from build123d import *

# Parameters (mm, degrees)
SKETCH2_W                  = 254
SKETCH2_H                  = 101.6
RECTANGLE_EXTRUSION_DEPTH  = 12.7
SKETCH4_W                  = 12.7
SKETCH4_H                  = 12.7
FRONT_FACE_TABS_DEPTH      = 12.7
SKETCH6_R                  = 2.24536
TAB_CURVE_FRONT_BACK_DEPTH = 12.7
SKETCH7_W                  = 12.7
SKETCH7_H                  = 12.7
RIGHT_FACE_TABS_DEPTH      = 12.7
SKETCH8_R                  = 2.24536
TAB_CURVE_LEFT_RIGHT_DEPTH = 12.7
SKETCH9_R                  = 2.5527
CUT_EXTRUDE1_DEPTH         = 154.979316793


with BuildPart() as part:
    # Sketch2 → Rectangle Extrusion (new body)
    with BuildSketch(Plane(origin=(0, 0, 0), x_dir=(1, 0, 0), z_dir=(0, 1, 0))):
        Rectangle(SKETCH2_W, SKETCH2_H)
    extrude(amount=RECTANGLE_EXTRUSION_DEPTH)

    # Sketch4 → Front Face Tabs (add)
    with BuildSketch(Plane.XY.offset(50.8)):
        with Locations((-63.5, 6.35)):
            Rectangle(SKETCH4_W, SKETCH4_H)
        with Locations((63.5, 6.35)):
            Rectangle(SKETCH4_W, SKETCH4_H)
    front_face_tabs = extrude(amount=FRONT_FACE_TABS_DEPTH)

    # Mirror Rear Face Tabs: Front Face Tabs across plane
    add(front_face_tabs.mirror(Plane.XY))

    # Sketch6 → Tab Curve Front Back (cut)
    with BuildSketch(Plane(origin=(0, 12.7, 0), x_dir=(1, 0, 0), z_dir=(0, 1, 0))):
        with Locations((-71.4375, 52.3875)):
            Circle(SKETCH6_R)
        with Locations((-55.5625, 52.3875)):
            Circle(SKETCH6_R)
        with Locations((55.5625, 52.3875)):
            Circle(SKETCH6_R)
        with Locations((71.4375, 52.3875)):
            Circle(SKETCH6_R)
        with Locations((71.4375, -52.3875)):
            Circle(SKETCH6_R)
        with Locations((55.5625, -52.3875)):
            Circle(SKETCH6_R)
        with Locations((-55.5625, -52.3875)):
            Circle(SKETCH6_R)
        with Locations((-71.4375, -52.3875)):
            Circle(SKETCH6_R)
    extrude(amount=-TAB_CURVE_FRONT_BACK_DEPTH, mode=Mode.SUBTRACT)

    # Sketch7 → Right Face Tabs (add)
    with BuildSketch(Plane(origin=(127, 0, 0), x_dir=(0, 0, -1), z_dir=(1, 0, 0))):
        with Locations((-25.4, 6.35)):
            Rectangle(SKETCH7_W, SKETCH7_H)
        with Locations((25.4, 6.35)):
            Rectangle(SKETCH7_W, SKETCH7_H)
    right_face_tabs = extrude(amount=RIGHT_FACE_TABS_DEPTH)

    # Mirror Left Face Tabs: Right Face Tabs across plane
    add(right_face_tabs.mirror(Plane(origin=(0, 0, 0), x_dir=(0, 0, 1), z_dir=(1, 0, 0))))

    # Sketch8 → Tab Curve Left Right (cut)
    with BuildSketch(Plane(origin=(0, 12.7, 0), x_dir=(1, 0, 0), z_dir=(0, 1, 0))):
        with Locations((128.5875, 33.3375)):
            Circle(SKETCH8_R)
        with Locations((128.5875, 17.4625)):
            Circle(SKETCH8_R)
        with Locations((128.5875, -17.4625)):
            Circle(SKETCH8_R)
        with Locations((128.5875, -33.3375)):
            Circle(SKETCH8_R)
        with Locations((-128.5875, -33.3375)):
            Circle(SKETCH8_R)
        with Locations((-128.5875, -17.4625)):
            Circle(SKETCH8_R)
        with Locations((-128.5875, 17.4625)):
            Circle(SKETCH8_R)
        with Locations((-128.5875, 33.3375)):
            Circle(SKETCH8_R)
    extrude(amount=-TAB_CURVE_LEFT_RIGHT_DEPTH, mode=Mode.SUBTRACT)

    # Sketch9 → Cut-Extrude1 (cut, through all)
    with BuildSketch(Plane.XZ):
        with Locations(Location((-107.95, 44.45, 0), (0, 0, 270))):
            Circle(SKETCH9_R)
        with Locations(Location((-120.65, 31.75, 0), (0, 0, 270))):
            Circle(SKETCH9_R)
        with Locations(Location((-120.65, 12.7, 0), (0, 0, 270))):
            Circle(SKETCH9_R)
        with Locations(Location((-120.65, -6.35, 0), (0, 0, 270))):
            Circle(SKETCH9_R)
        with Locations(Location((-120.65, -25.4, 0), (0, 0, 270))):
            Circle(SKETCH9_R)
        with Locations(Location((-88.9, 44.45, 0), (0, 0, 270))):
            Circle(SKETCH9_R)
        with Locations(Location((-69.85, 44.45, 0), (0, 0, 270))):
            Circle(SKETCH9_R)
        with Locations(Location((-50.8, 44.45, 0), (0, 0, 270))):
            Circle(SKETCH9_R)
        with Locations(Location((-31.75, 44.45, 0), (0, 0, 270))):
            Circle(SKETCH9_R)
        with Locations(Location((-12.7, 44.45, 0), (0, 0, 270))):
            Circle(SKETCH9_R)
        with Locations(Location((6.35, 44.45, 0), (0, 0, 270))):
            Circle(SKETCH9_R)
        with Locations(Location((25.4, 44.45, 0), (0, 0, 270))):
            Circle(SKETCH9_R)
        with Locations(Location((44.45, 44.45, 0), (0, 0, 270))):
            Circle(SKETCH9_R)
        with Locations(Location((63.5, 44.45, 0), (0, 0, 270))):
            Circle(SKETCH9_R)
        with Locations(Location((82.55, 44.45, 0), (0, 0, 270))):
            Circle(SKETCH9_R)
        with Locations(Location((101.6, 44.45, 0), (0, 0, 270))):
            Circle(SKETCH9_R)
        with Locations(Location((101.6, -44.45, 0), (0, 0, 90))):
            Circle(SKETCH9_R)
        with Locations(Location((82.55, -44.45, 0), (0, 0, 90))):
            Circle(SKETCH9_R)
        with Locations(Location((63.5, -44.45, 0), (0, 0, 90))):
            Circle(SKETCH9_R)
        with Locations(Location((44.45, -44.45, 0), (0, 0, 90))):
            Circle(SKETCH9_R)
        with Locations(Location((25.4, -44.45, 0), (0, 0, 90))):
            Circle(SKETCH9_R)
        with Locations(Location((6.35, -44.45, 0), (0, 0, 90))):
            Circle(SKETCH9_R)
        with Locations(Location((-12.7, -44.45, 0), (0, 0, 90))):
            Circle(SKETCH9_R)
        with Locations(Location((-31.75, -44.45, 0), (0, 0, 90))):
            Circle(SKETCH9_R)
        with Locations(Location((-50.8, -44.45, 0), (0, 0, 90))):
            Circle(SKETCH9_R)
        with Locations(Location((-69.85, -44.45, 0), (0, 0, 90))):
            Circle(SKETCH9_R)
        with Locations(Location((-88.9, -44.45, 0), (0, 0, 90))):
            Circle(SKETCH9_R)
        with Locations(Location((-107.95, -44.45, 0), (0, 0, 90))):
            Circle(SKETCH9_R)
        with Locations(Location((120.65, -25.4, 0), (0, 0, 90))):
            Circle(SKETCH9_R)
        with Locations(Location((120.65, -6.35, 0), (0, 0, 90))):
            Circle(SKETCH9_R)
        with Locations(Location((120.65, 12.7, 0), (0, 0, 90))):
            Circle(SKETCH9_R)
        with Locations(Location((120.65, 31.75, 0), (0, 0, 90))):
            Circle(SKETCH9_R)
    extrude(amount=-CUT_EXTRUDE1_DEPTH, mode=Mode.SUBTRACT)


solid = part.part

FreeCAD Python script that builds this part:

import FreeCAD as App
import Part
import Sketcher
from FreeCAD import Vector
Q = App.Units.Quantity

doc = App.newDocument("Part")
params = doc.addObject("Spreadsheet::Sheet", "Params")
for row, (alias, value) in enumerate([
    ("sketch1_width", "10 in"),
    ("sketch1_height", "4 in"),
    ("pad1_length", "0.5 in"),
    ("sketch2_width", "0.5 in"),
    ("pad2_length", "0.5 in"),
    ("pocket1_length", "0.5 in"),
    ("sketch4_width", "0.5 in"),
    ("pad3_length", "0.5 in"),
    ("pocket2_length", "0.5 in"),
    ("sketch6_diameter", "0.201 in"),
], start=1):
    params.set(f"A{row}", alias)
    params.set(f"B{row}", "=" + value)
    params.setAlias(f"B{row}", alias)

body = doc.addObject("PartDesign::Body", "Body")

sketch1 = body.newObject("Sketcher::SketchObject", "Sketch")
sketch1.AttachmentSupport = (doc.getObject("XZ_Plane"), [""])
sketch1.MapMode = "FlatFace"
sketch1.addGeometry([
    Part.LineSegment(Vector(-127, -50.8, 0), Vector(-127, 50.8, 0)),
    Part.LineSegment(Vector(-127, 50.8, 0), Vector(127, 50.8, 0)),
    Part.LineSegment(Vector(127, 50.8, 0), Vector(127, -50.8, 0)),
    Part.LineSegment(Vector(127, -50.8, 0), Vector(-127, -50.8, 0)),
], False)
sketch1.addConstraint([
    Sketcher.Constraint("Coincident", 0, 2, 1, 1),
    Sketcher.Constraint("Coincident", 1, 2, 2, 1),
    Sketcher.Constraint("Coincident", 2, 2, 3, 1),
    Sketcher.Constraint("Coincident", 3, 2, 0, 1),
    Sketcher.Constraint("Vertical", 0),
    Sketcher.Constraint("Horizontal", 1),
    Sketcher.Constraint("Vertical", 2),
    Sketcher.Constraint("Horizontal", 3),
    Sketcher.Constraint("Symmetric", 0, 2, 2, 2, -1, 1),
    Sketcher.Constraint("DistanceX", 1, 1, 1, 2, Q("10 in")),
    Sketcher.Constraint("DistanceY", 0, 1, 0, 2, Q("4 in")),
])
sketch1.setExpression("Constraints[9]", "Params.sketch1_width")
sketch1.setExpression("Constraints[10]", "Params.sketch1_height")
pad1 = body.newObject("PartDesign::Pad", "Pad")
pad1.Profile = sketch1
pad1.setExpression("Length", "Params.pad1_length")
pad1.Reversed = True

sketch2 = body.newObject("Sketcher::SketchObject", "Sketch001")
sketch2.AttachmentSupport = (doc.getObject("XY_Plane"), [""])
sketch2.MapMode = "FlatFace"
sketch2.AttachmentOffset = App.Placement(Vector(0, 0, 2 * 25.4), App.Rotation())
sketch2.addGeometry([
    Part.LineSegment(Vector(-69.85, 12.7, 0), Vector(-69.85, 0, 0)),
    Part.LineSegment(Vector(-69.85, 0, 0), Vector(-57.15, 0, 0)),
    Part.LineSegment(Vector(-57.15, 0, 0), Vector(-57.15, 12.7, 0)),
    Part.LineSegment(Vector(-57.15, 12.7, 0), Vector(-69.85, 12.7, 0)),
    Part.LineSegment(Vector(57.15, 12.7, 0), Vector(57.15, 0, 0)),
    Part.LineSegment(Vector(57.15, 0, 0), Vector(69.85, 0, 0)),
    Part.LineSegment(Vector(69.85, 0, 0), Vector(69.85, 12.7, 0)),
    Part.LineSegment(Vector(69.85, 12.7, 0), Vector(57.15, 12.7, 0)),
], False)
sketch2.addConstraint([
    Sketcher.Constraint("Coincident", 0, 2, 1, 1),
    Sketcher.Constraint("Coincident", 1, 2, 2, 1),
    Sketcher.Constraint("Coincident", 2, 2, 3, 1),
    Sketcher.Constraint("Coincident", 3, 2, 0, 1),
    Sketcher.Constraint("Coincident", 4, 2, 5, 1),
    Sketcher.Constraint("Coincident", 5, 2, 6, 1),
    Sketcher.Constraint("Coincident", 6, 2, 7, 1),
    Sketcher.Constraint("Coincident", 7, 2, 4, 1),
    Sketcher.Constraint("Vertical", 0),
    Sketcher.Constraint("Horizontal", 1),
    Sketcher.Constraint("Vertical", 2),
    Sketcher.Constraint("Horizontal", 3),
    Sketcher.Constraint("Vertical", 4),
    Sketcher.Constraint("Horizontal", 5),
    Sketcher.Constraint("Vertical", 6),
    Sketcher.Constraint("Horizontal", 7),
    Sketcher.Constraint("Symmetric", 1, 2, 4, 2, -1, 1),
    Sketcher.Constraint("Symmetric", 0, 2, 5, 2, -2),
    Sketcher.Constraint("Horizontal", 3, 2, 6, 2),
    Sketcher.Constraint("Equal", 7, 0),
    Sketcher.Constraint("DistanceX", 1, 1, 1, 2, Q("0.5 in")),
    Sketcher.Constraint("DistanceX", 0, 2, 4, 2, Q("5 in")),
])
sketch2.setExpression("Constraints[20]", "Params.sketch2_width")
pad2 = body.newObject("PartDesign::Pad", "Pad001")
pad2.Profile = sketch2
pad2.setExpression("Length", "Params.pad2_length")
doc.recompute()

mirrored = body.newObject("PartDesign::Mirrored", "Mirrored")
mirrored.Originals = [pad2]
mirrored.MirrorPlane = (doc.getObject("XY_Plane"), [""])
body.Tip = mirrored

sketch3 = body.newObject("Sketcher::SketchObject", "Sketch002")
sketch3.AttachmentSupport = (doc.getObject("XZ_Plane"), [""])
sketch3.MapMode = "FlatFace"
sketch3.AttachmentOffset = App.Placement(Vector(0, 0, -0.5 * 25.4), App.Rotation())
sketch3.addGeometry([
    Part.Circle(Vector(-71.4375, -52.3875, 0), Vector(0, 0, 1), 2.24536),
    Part.Circle(Vector(-55.5625, -52.3875, 0), Vector(0, 0, 1), 2.24536),
    Part.Circle(Vector(55.5625, -52.3875, 0), Vector(0, 0, 1), 2.24536),
    Part.Circle(Vector(71.4375, -52.3875, 0), Vector(0, 0, 1), 2.24536),
    Part.Circle(Vector(71.4375, 52.3875, 0), Vector(0, 0, 1), 2.24536),
    Part.Circle(Vector(55.5625, 52.3875, 0), Vector(0, 0, 1), 2.24536),
    Part.Circle(Vector(-55.5625, 52.3875, 0), Vector(0, 0, 1), 2.24536),
    Part.Circle(Vector(-71.4375, 52.3875, 0), Vector(0, 0, 1), 2.24536),
], False)
sketch3.addConstraint([
    Sketcher.Constraint("Equal", 0, 1),
    Sketcher.Constraint("Equal", 1, 2),
    Sketcher.Constraint("Equal", 2, 3),
    Sketcher.Constraint("Equal", 3, 4),
    Sketcher.Constraint("Equal", 4, 5),
    Sketcher.Constraint("Equal", 5, 6),
    Sketcher.Constraint("Equal", 6, 7),
    Sketcher.Constraint("Symmetric", 0, 3, 4, 3, -1, 1),
    Sketcher.Constraint("Symmetric", 1, 3, 5, 3, -1, 1),
    Sketcher.Constraint("Symmetric", 2, 3, 6, 3, -1, 1),
    Sketcher.Constraint("Symmetric", 3, 3, 7, 3, -1, 1),
    Sketcher.Constraint("Symmetric", 1, 3, 2, 3, -2),
    Sketcher.Constraint("Symmetric", 0, 3, 3, 3, -2),
    Sketcher.Constraint("Horizontal", 0, 3, 1, 3),
    Sketcher.Constraint("DistanceX", 0, 3, 2, 3, Q("5 in")),
    Sketcher.Constraint("Diameter", 0, Q("0.1768 in")),
    Sketcher.Constraint("DistanceX", 0, 3, -1, 1, Q("2.8125 in")),
    Sketcher.Constraint("DistanceY", 0, 3, -1, 1, Q("2.0625 in")),
])
pocket1 = body.newObject("PartDesign::Pocket", "Pocket")
pocket1.Profile = sketch3
pocket1.setExpression("Length", "Params.pocket1_length")
pocket1.Reversed = True

sketch4 = body.newObject("Sketcher::SketchObject", "Sketch003")
sketch4.AttachmentSupport = (doc.getObject("YZ_Plane"), [""])
sketch4.MapMode = "FlatFace"
sketch4.AttachmentOffset = App.Placement(Vector(0, 0, 5 * 25.4), App.Rotation())
sketch4.addGeometry([
    Part.LineSegment(Vector(12.7, 31.75, 0), Vector(0, 31.75, 0)),
    Part.LineSegment(Vector(0, 31.75, 0), Vector(0, 19.05, 0)),
    Part.LineSegment(Vector(0, 19.05, 0), Vector(12.7, 19.05, 0)),
    Part.LineSegment(Vector(12.7, 19.05, 0), Vector(12.7, 31.75, 0)),
    Part.LineSegment(Vector(12.7, -19.05, 0), Vector(0, -19.05, 0)),
    Part.LineSegment(Vector(0, -19.05, 0), Vector(0, -31.75, 0)),
    Part.LineSegment(Vector(0, -31.75, 0), Vector(12.7, -31.75, 0)),
    Part.LineSegment(Vector(12.7, -31.75, 0), Vector(12.7, -19.05, 0)),
], False)
sketch4.addConstraint([
    Sketcher.Constraint("Coincident", 0, 2, 1, 1),
    Sketcher.Constraint("Coincident", 1, 2, 2, 1),
    Sketcher.Constraint("Coincident", 2, 2, 3, 1),
    Sketcher.Constraint("Coincident", 3, 2, 0, 1),
    Sketcher.Constraint("Coincident", 4, 2, 5, 1),
    Sketcher.Constraint("Coincident", 5, 2, 6, 1),
    Sketcher.Constraint("Coincident", 6, 2, 7, 1),
    Sketcher.Constraint("Coincident", 7, 2, 4, 1),
    Sketcher.Constraint("Horizontal", 0),
    Sketcher.Constraint("Vertical", 1),
    Sketcher.Constraint("Horizontal", 2),
    Sketcher.Constraint("Vertical", 3),
    Sketcher.Constraint("Horizontal", 4),
    Sketcher.Constraint("Vertical", 5),
    Sketcher.Constraint("Horizontal", 6),
    Sketcher.Constraint("Vertical", 7),
    Sketcher.Constraint("Symmetric", 1, 2, 4, 2, -1, 1),
    Sketcher.Constraint("Symmetric", 0, 2, 5, 2, -1),
    Sketcher.Constraint("Vertical", 3, 2, 6, 2),
    Sketcher.Constraint("Equal", 6, 1),
    Sketcher.Constraint("DistanceX", 0, 2, 0, 1, Q("0.5 in")),
    Sketcher.Constraint("DistanceY", 4, 2, 0, 2, Q("2 in")),
])
sketch4.setExpression("Constraints[20]", "Params.sketch4_width")
pad3 = body.newObject("PartDesign::Pad", "Pad002")
pad3.Profile = sketch4
pad3.setExpression("Length", "Params.pad3_length")
doc.recompute()

mirrored2 = body.newObject("PartDesign::Mirrored", "Mirrored001")
mirrored2.Originals = [pad3]
mirrored2.MirrorPlane = (doc.getObject("YZ_Plane"), [""])
body.Tip = mirrored2

sketch5 = body.newObject("Sketcher::SketchObject", "Sketch004")
sketch5.AttachmentSupport = (doc.getObject("XZ_Plane"), [""])
sketch5.MapMode = "FlatFace"
sketch5.AttachmentOffset = App.Placement(Vector(0, 0, -0.5 * 25.4), App.Rotation())
sketch5.addGeometry([
    Part.Circle(Vector(128.5875, -33.3375, 0), Vector(0, 0, 1), 2.24536),
    Part.Circle(Vector(128.5875, -17.4625, 0), Vector(0, 0, 1), 2.24536),
    Part.Circle(Vector(128.5875, 17.4625, 0), Vector(0, 0, 1), 2.24536),
    Part.Circle(Vector(128.5875, 33.3375, 0), Vector(0, 0, 1), 2.24536),
    Part.Circle(Vector(-128.5875, 33.3375, 0), Vector(0, 0, 1), 2.24536),
    Part.Circle(Vector(-128.5875, 17.4625, 0), Vector(0, 0, 1), 2.24536),
    Part.Circle(Vector(-128.5875, -17.4625, 0), Vector(0, 0, 1), 2.24536),
    Part.Circle(Vector(-128.5875, -33.3375, 0), Vector(0, 0, 1), 2.24536),
], False)
sketch5.addConstraint([
    Sketcher.Constraint("Equal", 0, 1),
    Sketcher.Constraint("Equal", 1, 2),
    Sketcher.Constraint("Equal", 2, 3),
    Sketcher.Constraint("Equal", 3, 4),
    Sketcher.Constraint("Equal", 4, 5),
    Sketcher.Constraint("Equal", 5, 6),
    Sketcher.Constraint("Equal", 6, 7),
    Sketcher.Constraint("Symmetric", 0, 3, 4, 3, -1, 1),
    Sketcher.Constraint("Symmetric", 1, 3, 5, 3, -1, 1),
    Sketcher.Constraint("Symmetric", 2, 3, 6, 3, -1, 1),
    Sketcher.Constraint("Symmetric", 3, 3, 7, 3, -1, 1),
    Sketcher.Constraint("Symmetric", 3, 3, 4, 3, -2),
    Sketcher.Constraint("Symmetric", 2, 3, 5, 3, -2),
    Sketcher.Constraint("Vertical", 0, 3, 1, 3),
    Sketcher.Constraint("DistanceY", 0, 3, 2, 3, Q("2 in")),
    Sketcher.Constraint("Diameter", 0, Q("0.1768 in")),
    Sketcher.Constraint("DistanceX", -1, 1, 0, 3, Q("5.0625 in")),
    Sketcher.Constraint("DistanceY", 0, 3, -1, 1, Q("1.3125 in")),
])
pocket2 = body.newObject("PartDesign::Pocket", "Pocket001")
pocket2.Profile = sketch5
pocket2.setExpression("Length", "Params.pocket2_length")
pocket2.Reversed = True

sketch6 = body.newObject("Sketcher::SketchObject", "Sketch005")
sketch6.AttachmentSupport = (doc.getObject("XZ_Plane"), [""])
sketch6.MapMode = "FlatFace"
sketch6.addGeometry([
    Part.Circle(Vector(-107.95, 44.45, 0), Vector(0, 0, 1), 2.5527),
    Part.Circle(Vector(-120.65, 31.75, 0), Vector(0, 0, 1), 2.5527),
    Part.Circle(Vector(-120.65, 12.7, 0), Vector(0, 0, 1), 2.5527),
    Part.Circle(Vector(-120.65, -6.35, 0), Vector(0, 0, 1), 2.5527),
    Part.Circle(Vector(-120.65, -25.4, 0), Vector(0, 0, 1), 2.5527),
    Part.Circle(Vector(-88.9, 44.45, 0), Vector(0, 0, 1), 2.5527),
    Part.Circle(Vector(-69.85, 44.45, 0), Vector(0, 0, 1), 2.5527),
    Part.Circle(Vector(-50.8, 44.45, 0), Vector(0, 0, 1), 2.5527),
    Part.Circle(Vector(-31.75, 44.45, 0), Vector(0, 0, 1), 2.5527),
    Part.Circle(Vector(-12.7, 44.45, 0), Vector(0, 0, 1), 2.5527),
    Part.Circle(Vector(6.35, 44.45, 0), Vector(0, 0, 1), 2.5527),
    Part.Circle(Vector(25.4, 44.45, 0), Vector(0, 0, 1), 2.5527),
    Part.Circle(Vector(44.45, 44.45, 0), Vector(0, 0, 1), 2.5527),
    Part.Circle(Vector(63.5, 44.45, 0), Vector(0, 0, 1), 2.5527),
    Part.Circle(Vector(82.55, 44.45, 0), Vector(0, 0, 1), 2.5527),
    Part.Circle(Vector(101.6, 44.45, 0), Vector(0, 0, 1), 2.5527),
    Part.Circle(Vector(101.6, -44.45, 0), Vector(0, 0, 1), 2.5527),
    Part.Circle(Vector(82.55, -44.45, 0), Vector(0, 0, 1), 2.5527),
    Part.Circle(Vector(63.5, -44.45, 0), Vector(0, 0, 1), 2.5527),
    Part.Circle(Vector(44.45, -44.45, 0), Vector(0, 0, 1), 2.5527),
    Part.Circle(Vector(25.4, -44.45, 0), Vector(0, 0, 1), 2.5527),
    Part.Circle(Vector(6.35, -44.45, 0), Vector(0, 0, 1), 2.5527),
    Part.Circle(Vector(-12.7, -44.45, 0), Vector(0, 0, 1), 2.5527),
    Part.Circle(Vector(-31.75, -44.45, 0), Vector(0, 0, 1), 2.5527),
    Part.Circle(Vector(-50.8, -44.45, 0), Vector(0, 0, 1), 2.5527),
    Part.Circle(Vector(-69.85, -44.45, 0), Vector(0, 0, 1), 2.5527),
    Part.Circle(Vector(-88.9, -44.45, 0), Vector(0, 0, 1), 2.5527),
    Part.Circle(Vector(-107.95, -44.45, 0), Vector(0, 0, 1), 2.5527),
    Part.Circle(Vector(120.65, -25.4, 0), Vector(0, 0, 1), 2.5527),
    Part.Circle(Vector(120.65, -6.35, 0), Vector(0, 0, 1), 2.5527),
    Part.Circle(Vector(120.65, 12.7, 0), Vector(0, 0, 1), 2.5527),
    Part.Circle(Vector(120.65, 31.75, 0), Vector(0, 0, 1), 2.5527),
], False)
sketch6.addConstraint([
    Sketcher.Constraint("Equal", 0, 1),
    Sketcher.Constraint("Equal", 1, 2),
    Sketcher.Constraint("Equal", 2, 3),
    Sketcher.Constraint("Equal", 3, 4),
    Sketcher.Constraint("Equal", 4, 5),
    Sketcher.Constraint("Equal", 5, 6),
    Sketcher.Constraint("Equal", 6, 7),
    Sketcher.Constraint("Equal", 7, 8),
    Sketcher.Constraint("Equal", 8, 9),
    Sketcher.Constraint("Equal", 9, 10),
    Sketcher.Constraint("Equal", 10, 11),
    Sketcher.Constraint("Equal", 11, 12),
    Sketcher.Constraint("Equal", 12, 13),
    Sketcher.Constraint("Equal", 13, 14),
    Sketcher.Constraint("Equal", 14, 15),
    Sketcher.Constraint("Equal", 15, 16),
    Sketcher.Constraint("Equal", 16, 17),
    Sketcher.Constraint("Equal", 17, 18),
    Sketcher.Constraint("Equal", 18, 19),
    Sketcher.Constraint("Equal", 19, 20),
    Sketcher.Constraint("Equal", 20, 21),
    Sketcher.Constraint("Equal", 21, 22),
    Sketcher.Constraint("Equal", 22, 23),
    Sketcher.Constraint("Equal", 23, 24),
    Sketcher.Constraint("Equal", 24, 25),
    Sketcher.Constraint("Equal", 25, 26),
    Sketcher.Constraint("Equal", 26, 27),
    Sketcher.Constraint("Equal", 27, 28),
    Sketcher.Constraint("Equal", 28, 29),
    Sketcher.Constraint("Equal", 29, 30),
    Sketcher.Constraint("Equal", 30, 31),
    Sketcher.Constraint("Symmetric", 4, 3, 28, 3, -2),
    Sketcher.Constraint("Symmetric", 3, 3, 29, 3, -2),
    Sketcher.Constraint("Symmetric", 2, 3, 30, 3, -2),
    Sketcher.Constraint("Symmetric", 1, 3, 31, 3, -2),
    Sketcher.Constraint("Symmetric", 15, 3, 16, 3, -1),
    Sketcher.Constraint("Symmetric", 14, 3, 17, 3, -1),
    Sketcher.Constraint("Symmetric", 13, 3, 18, 3, -1),
    Sketcher.Constraint("Symmetric", 12, 3, 19, 3, -1),
    Sketcher.Constraint("Symmetric", 11, 3, 20, 3, -1),
    Sketcher.Constraint("Symmetric", 10, 3, 21, 3, -1),
    Sketcher.Constraint("Symmetric", 9, 3, 22, 3, -1),
    Sketcher.Constraint("Symmetric", 8, 3, 23, 3, -1),
    Sketcher.Constraint("Symmetric", 7, 3, 24, 3, -1),
    Sketcher.Constraint("Symmetric", 6, 3, 25, 3, -1),
    Sketcher.Constraint("Symmetric", 5, 3, 26, 3, -1),
    Sketcher.Constraint("Symmetric", 0, 3, 27, 3, -1),
    Sketcher.Constraint("Horizontal", 0, 3, 5, 3),
    Sketcher.Constraint("Horizontal", 5, 3, 6, 3),
    Sketcher.Constraint("Horizontal", 6, 3, 7, 3),
    Sketcher.Constraint("Horizontal", 7, 3, 8, 3),
    Sketcher.Constraint("Horizontal", 8, 3, 9, 3),
    Sketcher.Constraint("Horizontal", 9, 3, 10, 3),
    Sketcher.Constraint("Horizontal", 10, 3, 11, 3),
    Sketcher.Constraint("Horizontal", 11, 3, 12, 3),
    Sketcher.Constraint("Horizontal", 12, 3, 13, 3),
    Sketcher.Constraint("Horizontal", 13, 3, 14, 3),
    Sketcher.Constraint("Horizontal", 14, 3, 15, 3),
    Sketcher.Constraint("Vertical", 1, 3, 2, 3),
    Sketcher.Constraint("Vertical", 2, 3, 3, 3),
    Sketcher.Constraint("Vertical", 3, 3, 4, 3),
    Sketcher.Constraint("Diameter", 0, Q("0.201 in")),
    Sketcher.Constraint("DistanceY", 4, 3, -1, 1, Q("1 in")),
    Sketcher.Constraint("DistanceX", 7, 3, -1, 1, Q("2 in")),
    Sketcher.Constraint("DistanceX", -1, 1, 11, 3, Q("1 in")),
    Sketcher.Constraint("DistanceX", -1, 1, 15, 3, Q("4 in")),
    Sketcher.Constraint("DistanceY", 3, 3, 0, 3, Q("2 in")),
    Sketcher.Constraint("DistanceX", 1, 3, 6, 3, Q("2 in")),
    Sketcher.Constraint("DistanceX", 0, 3, 8, 3, Q("3 in")),
    Sketcher.Constraint("DistanceX", 5, 3, 9, 3, Q("3 in")),
    Sketcher.Constraint("DistanceX", 6, 3, 10, 3, Q("3 in")),
    Sketcher.Constraint("DistanceX", 8, 3, 12, 3, Q("3 in")),
    Sketcher.Constraint("DistanceX", 9, 3, 13, 3, Q("3 in")),
    Sketcher.Constraint("DistanceX", 10, 3, 14, 3, Q("3 in")),
    Sketcher.Constraint("DistanceX", 19, 3, 28, 3, Q("3 in")),
    Sketcher.Constraint("DistanceY", -1, 1, 2, 3, Q("0.5 in")),
    Sketcher.Constraint("DistanceX", 5, 3, -1, 1, Q("3.5 in")),
    Sketcher.Constraint("DistanceX", 1, 3, 0, 3, Q("0.5 in")),
    Sketcher.Constraint("DistanceY", 1, 3, 0, 3, Q("0.5 in")),
    Sketcher.Constraint("DistanceY", 16, 3, 15, 3, Q("3.5 in")),
])
sketch6.setExpression("Constraints[61]", "Params.sketch6_diameter")
pocket3 = body.newObject("PartDesign::Pocket", "Pocket002")
pocket3.Profile = sketch6
pocket3.Type = "ThroughAll"

doc.recompute()
